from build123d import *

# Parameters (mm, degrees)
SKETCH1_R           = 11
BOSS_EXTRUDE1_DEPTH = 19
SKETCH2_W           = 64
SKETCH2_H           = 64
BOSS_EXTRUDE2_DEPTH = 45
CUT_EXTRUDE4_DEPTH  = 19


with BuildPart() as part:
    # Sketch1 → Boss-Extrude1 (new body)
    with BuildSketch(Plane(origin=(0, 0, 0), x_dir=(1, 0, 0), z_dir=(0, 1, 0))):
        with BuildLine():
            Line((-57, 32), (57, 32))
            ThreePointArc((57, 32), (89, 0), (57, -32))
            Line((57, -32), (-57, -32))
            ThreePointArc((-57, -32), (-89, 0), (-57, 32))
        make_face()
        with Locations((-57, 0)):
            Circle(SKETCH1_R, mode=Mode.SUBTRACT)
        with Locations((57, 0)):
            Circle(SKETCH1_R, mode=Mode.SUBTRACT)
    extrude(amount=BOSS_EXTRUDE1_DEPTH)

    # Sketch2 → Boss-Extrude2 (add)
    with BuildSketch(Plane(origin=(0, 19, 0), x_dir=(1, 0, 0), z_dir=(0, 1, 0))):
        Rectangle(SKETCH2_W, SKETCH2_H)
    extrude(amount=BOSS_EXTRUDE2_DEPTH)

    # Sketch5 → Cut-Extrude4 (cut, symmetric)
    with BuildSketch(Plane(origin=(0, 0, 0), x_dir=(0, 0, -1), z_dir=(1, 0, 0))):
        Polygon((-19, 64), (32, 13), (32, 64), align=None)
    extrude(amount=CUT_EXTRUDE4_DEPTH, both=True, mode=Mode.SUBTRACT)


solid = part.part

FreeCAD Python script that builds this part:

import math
import FreeCAD as App
import Part
import Sketcher

V = App.Vector
Q = App.Units.Quantity


def add_polygon(sketch, points):
    """Adds a closed chain of lines whose ends are joined by coincident constraints."""
    first, n = sketch.GeometryCount, len(points)
    for a, b in zip(points, points[1:] + points[:1]):
        sketch.addGeometry(Part.LineSegment(App.Vector(*a, 0), App.Vector(*b, 0)), False)
    for i in range(n):
        sketch.addConstraint(Sketcher.Constraint("Coincident", first + i, 2, first + (i + 1) % n, 1))

doc = App.newDocument("Part")
params = doc.addObject("Spreadsheet::Sheet", "Params")
for row, (alias, value) in enumerate([
    ("sketch1_diameter", "22 mm"),
    ("sketch1_radius", "32 mm"),
    ("sketch1_width", "114 mm"),
    ("pad1_length", "19 mm"),
    ("sketch2_width", "64 mm"),
    ("pad2_length", "45 mm"),
    ("sketch3_width", "51 mm"),
    ("pocket1_length", "38 mm"),
], start=1):
    params.set(f"A{row}", alias)
    params.set(f"B{row}", "=" + value)
    params.setAlias(f"B{row}", alias)

body = doc.addObject("PartDesign::Body", "Body")

sketch1 = body.newObject("Sketcher::SketchObject", "Sketch")
sketch1.AttachmentSupport = (doc.getObject("XZ_Plane"), [""])
sketch1.MapMode = "FlatFace"
sketch1.addGeometry([
    Part.LineSegment(V(57, -32, 0), V(-57, -32, 0)),
    Part.ArcOfCircle(Part.Circle(V(-57, 0, 0), V(0, 0, 1), 32), math.radians(90), math.radians(270)),
    Part.LineSegment(V(-57, 32, 0), V(57, 32, 0)),
    Part.ArcOfCircle(Part.Circle(V(57, 0, 0), V(0, 0, 1), 32), math.radians(-90), math.radians(90)),
    Part.Circle(V(57, 0, 0), V(0, 0, 1), 11),
    Part.Circle(V(-57, 0, 0), V(0, 0, 1), 11),
], False)
sketch1.addConstraint([
    Sketcher.Constraint("Tangent", 0, 2, 1, 2),
    Sketcher.Constraint("Tangent", 1, 1, 2, 1),
    Sketcher.Constraint("Tangent", 2, 2, 3, 2),
    Sketcher.Constraint("Tangent", 3, 1, 0, 1),
    Sketcher.Constraint("Horizontal", 0),
    Sketcher.Constraint("Horizontal", 2),
    Sketcher.Constraint("Coincident", 4, 3, 3, 3),
    Sketcher.Constraint("Coincident", 5, 3, 1, 3),
    Sketcher.Constraint("Equal", 4, 5),
    Sketcher.Constraint("Symmetric", 1, 3, 3, 3, -1, 1),
    Sketcher.Constraint("Diameter", 4, Q("22 mm")),
    Sketcher.Constraint("Radius", 1, Q("32 mm")),
    Sketcher.Constraint("DistanceX", 0, 2, 0, 1, Q("114 mm")),
])
sketch1.setExpression("Constraints[10]", "Params.sketch1_diameter")
sketch1.setExpression("Constraints[11]", "Params.sketch1_radius")
sketch1.setExpression("Constraints[12]", "Params.sketch1_width")
pad1 = body.newObject("PartDesign::Pad", "Pad")
pad1.Profile = sketch1
pad1.setExpression("Length", "Params.pad1_length")
pad1.Reversed = True

sketch2 = body.newObject("Sketcher::SketchObject", "Sketch001")
sketch2.AttachmentSupport = (doc.getObject("XZ_Plane"), [""])
sketch2.MapMode = "FlatFace"
sketch2.AttachmentOffset = App.Placement(V(0, 0, -19), App.Rotation())
add_polygon(sketch2, [(-32, -32), (-32, 32), (32, 32), (32, -32)])
sketch2.addConstraint([
    Sketcher.Constraint("Vertical", 0),
    Sketcher.Constraint("Horizontal", 1),
    Sketcher.Constraint("Vertical", 2),
    Sketcher.Constraint("Horizontal", 3),
    Sketcher.Constraint("Symmetric", 0, 2, 2, 2, -1, 1),
    Sketcher.Constraint("Equal", 3, 0),
    Sketcher.Constraint("DistanceX", 1, 1, 1, 2, Q("64 mm")),
])
sketch2.setExpression("Constraints[10]", "Params.sketch2_width")
pad2 = body.newObject("PartDesign::Pad", "Pad001")
pad2.Profile = sketch2
pad2.setExpression("Length", "Params.pad2_length")
pad2.Reversed = True

sketch3 = body.newObject("Sketcher::SketchObject", "Sketch002")
sketch3.AttachmentSupport = (doc.getObject("YZ_Plane"), [""])
sketch3.MapMode = "FlatFace"
add_polygon(sketch3, [(64, 19), (13, -32), (64, -32)])
sketch3.addConstraint([
    Sketcher.Constraint("Horizontal", 1),
    Sketcher.Constraint("Vertical", 2),
    Sketcher.Constraint("Equal", 1, 2),
    Sketcher.Constraint("DistanceX", 1, 1, 1, 2, Q("51 mm")),
    Sketcher.Constraint("DistanceX", -1, 1, 0, 2, Q("13 mm")),
    Sketcher.Constraint("DistanceY", 0, 2, -1, 1, Q("32 mm")),
])
sketch3.setExpression("Constraints[6]", "Params.sketch3_width")
pocket1 = body.newObject("PartDesign::Pocket", "Pocket")
pocket1.Profile = sketch3
pocket1.setExpression("Length", "Params.pocket1_length")
pocket1.Midplane = True

doc.recompute()
